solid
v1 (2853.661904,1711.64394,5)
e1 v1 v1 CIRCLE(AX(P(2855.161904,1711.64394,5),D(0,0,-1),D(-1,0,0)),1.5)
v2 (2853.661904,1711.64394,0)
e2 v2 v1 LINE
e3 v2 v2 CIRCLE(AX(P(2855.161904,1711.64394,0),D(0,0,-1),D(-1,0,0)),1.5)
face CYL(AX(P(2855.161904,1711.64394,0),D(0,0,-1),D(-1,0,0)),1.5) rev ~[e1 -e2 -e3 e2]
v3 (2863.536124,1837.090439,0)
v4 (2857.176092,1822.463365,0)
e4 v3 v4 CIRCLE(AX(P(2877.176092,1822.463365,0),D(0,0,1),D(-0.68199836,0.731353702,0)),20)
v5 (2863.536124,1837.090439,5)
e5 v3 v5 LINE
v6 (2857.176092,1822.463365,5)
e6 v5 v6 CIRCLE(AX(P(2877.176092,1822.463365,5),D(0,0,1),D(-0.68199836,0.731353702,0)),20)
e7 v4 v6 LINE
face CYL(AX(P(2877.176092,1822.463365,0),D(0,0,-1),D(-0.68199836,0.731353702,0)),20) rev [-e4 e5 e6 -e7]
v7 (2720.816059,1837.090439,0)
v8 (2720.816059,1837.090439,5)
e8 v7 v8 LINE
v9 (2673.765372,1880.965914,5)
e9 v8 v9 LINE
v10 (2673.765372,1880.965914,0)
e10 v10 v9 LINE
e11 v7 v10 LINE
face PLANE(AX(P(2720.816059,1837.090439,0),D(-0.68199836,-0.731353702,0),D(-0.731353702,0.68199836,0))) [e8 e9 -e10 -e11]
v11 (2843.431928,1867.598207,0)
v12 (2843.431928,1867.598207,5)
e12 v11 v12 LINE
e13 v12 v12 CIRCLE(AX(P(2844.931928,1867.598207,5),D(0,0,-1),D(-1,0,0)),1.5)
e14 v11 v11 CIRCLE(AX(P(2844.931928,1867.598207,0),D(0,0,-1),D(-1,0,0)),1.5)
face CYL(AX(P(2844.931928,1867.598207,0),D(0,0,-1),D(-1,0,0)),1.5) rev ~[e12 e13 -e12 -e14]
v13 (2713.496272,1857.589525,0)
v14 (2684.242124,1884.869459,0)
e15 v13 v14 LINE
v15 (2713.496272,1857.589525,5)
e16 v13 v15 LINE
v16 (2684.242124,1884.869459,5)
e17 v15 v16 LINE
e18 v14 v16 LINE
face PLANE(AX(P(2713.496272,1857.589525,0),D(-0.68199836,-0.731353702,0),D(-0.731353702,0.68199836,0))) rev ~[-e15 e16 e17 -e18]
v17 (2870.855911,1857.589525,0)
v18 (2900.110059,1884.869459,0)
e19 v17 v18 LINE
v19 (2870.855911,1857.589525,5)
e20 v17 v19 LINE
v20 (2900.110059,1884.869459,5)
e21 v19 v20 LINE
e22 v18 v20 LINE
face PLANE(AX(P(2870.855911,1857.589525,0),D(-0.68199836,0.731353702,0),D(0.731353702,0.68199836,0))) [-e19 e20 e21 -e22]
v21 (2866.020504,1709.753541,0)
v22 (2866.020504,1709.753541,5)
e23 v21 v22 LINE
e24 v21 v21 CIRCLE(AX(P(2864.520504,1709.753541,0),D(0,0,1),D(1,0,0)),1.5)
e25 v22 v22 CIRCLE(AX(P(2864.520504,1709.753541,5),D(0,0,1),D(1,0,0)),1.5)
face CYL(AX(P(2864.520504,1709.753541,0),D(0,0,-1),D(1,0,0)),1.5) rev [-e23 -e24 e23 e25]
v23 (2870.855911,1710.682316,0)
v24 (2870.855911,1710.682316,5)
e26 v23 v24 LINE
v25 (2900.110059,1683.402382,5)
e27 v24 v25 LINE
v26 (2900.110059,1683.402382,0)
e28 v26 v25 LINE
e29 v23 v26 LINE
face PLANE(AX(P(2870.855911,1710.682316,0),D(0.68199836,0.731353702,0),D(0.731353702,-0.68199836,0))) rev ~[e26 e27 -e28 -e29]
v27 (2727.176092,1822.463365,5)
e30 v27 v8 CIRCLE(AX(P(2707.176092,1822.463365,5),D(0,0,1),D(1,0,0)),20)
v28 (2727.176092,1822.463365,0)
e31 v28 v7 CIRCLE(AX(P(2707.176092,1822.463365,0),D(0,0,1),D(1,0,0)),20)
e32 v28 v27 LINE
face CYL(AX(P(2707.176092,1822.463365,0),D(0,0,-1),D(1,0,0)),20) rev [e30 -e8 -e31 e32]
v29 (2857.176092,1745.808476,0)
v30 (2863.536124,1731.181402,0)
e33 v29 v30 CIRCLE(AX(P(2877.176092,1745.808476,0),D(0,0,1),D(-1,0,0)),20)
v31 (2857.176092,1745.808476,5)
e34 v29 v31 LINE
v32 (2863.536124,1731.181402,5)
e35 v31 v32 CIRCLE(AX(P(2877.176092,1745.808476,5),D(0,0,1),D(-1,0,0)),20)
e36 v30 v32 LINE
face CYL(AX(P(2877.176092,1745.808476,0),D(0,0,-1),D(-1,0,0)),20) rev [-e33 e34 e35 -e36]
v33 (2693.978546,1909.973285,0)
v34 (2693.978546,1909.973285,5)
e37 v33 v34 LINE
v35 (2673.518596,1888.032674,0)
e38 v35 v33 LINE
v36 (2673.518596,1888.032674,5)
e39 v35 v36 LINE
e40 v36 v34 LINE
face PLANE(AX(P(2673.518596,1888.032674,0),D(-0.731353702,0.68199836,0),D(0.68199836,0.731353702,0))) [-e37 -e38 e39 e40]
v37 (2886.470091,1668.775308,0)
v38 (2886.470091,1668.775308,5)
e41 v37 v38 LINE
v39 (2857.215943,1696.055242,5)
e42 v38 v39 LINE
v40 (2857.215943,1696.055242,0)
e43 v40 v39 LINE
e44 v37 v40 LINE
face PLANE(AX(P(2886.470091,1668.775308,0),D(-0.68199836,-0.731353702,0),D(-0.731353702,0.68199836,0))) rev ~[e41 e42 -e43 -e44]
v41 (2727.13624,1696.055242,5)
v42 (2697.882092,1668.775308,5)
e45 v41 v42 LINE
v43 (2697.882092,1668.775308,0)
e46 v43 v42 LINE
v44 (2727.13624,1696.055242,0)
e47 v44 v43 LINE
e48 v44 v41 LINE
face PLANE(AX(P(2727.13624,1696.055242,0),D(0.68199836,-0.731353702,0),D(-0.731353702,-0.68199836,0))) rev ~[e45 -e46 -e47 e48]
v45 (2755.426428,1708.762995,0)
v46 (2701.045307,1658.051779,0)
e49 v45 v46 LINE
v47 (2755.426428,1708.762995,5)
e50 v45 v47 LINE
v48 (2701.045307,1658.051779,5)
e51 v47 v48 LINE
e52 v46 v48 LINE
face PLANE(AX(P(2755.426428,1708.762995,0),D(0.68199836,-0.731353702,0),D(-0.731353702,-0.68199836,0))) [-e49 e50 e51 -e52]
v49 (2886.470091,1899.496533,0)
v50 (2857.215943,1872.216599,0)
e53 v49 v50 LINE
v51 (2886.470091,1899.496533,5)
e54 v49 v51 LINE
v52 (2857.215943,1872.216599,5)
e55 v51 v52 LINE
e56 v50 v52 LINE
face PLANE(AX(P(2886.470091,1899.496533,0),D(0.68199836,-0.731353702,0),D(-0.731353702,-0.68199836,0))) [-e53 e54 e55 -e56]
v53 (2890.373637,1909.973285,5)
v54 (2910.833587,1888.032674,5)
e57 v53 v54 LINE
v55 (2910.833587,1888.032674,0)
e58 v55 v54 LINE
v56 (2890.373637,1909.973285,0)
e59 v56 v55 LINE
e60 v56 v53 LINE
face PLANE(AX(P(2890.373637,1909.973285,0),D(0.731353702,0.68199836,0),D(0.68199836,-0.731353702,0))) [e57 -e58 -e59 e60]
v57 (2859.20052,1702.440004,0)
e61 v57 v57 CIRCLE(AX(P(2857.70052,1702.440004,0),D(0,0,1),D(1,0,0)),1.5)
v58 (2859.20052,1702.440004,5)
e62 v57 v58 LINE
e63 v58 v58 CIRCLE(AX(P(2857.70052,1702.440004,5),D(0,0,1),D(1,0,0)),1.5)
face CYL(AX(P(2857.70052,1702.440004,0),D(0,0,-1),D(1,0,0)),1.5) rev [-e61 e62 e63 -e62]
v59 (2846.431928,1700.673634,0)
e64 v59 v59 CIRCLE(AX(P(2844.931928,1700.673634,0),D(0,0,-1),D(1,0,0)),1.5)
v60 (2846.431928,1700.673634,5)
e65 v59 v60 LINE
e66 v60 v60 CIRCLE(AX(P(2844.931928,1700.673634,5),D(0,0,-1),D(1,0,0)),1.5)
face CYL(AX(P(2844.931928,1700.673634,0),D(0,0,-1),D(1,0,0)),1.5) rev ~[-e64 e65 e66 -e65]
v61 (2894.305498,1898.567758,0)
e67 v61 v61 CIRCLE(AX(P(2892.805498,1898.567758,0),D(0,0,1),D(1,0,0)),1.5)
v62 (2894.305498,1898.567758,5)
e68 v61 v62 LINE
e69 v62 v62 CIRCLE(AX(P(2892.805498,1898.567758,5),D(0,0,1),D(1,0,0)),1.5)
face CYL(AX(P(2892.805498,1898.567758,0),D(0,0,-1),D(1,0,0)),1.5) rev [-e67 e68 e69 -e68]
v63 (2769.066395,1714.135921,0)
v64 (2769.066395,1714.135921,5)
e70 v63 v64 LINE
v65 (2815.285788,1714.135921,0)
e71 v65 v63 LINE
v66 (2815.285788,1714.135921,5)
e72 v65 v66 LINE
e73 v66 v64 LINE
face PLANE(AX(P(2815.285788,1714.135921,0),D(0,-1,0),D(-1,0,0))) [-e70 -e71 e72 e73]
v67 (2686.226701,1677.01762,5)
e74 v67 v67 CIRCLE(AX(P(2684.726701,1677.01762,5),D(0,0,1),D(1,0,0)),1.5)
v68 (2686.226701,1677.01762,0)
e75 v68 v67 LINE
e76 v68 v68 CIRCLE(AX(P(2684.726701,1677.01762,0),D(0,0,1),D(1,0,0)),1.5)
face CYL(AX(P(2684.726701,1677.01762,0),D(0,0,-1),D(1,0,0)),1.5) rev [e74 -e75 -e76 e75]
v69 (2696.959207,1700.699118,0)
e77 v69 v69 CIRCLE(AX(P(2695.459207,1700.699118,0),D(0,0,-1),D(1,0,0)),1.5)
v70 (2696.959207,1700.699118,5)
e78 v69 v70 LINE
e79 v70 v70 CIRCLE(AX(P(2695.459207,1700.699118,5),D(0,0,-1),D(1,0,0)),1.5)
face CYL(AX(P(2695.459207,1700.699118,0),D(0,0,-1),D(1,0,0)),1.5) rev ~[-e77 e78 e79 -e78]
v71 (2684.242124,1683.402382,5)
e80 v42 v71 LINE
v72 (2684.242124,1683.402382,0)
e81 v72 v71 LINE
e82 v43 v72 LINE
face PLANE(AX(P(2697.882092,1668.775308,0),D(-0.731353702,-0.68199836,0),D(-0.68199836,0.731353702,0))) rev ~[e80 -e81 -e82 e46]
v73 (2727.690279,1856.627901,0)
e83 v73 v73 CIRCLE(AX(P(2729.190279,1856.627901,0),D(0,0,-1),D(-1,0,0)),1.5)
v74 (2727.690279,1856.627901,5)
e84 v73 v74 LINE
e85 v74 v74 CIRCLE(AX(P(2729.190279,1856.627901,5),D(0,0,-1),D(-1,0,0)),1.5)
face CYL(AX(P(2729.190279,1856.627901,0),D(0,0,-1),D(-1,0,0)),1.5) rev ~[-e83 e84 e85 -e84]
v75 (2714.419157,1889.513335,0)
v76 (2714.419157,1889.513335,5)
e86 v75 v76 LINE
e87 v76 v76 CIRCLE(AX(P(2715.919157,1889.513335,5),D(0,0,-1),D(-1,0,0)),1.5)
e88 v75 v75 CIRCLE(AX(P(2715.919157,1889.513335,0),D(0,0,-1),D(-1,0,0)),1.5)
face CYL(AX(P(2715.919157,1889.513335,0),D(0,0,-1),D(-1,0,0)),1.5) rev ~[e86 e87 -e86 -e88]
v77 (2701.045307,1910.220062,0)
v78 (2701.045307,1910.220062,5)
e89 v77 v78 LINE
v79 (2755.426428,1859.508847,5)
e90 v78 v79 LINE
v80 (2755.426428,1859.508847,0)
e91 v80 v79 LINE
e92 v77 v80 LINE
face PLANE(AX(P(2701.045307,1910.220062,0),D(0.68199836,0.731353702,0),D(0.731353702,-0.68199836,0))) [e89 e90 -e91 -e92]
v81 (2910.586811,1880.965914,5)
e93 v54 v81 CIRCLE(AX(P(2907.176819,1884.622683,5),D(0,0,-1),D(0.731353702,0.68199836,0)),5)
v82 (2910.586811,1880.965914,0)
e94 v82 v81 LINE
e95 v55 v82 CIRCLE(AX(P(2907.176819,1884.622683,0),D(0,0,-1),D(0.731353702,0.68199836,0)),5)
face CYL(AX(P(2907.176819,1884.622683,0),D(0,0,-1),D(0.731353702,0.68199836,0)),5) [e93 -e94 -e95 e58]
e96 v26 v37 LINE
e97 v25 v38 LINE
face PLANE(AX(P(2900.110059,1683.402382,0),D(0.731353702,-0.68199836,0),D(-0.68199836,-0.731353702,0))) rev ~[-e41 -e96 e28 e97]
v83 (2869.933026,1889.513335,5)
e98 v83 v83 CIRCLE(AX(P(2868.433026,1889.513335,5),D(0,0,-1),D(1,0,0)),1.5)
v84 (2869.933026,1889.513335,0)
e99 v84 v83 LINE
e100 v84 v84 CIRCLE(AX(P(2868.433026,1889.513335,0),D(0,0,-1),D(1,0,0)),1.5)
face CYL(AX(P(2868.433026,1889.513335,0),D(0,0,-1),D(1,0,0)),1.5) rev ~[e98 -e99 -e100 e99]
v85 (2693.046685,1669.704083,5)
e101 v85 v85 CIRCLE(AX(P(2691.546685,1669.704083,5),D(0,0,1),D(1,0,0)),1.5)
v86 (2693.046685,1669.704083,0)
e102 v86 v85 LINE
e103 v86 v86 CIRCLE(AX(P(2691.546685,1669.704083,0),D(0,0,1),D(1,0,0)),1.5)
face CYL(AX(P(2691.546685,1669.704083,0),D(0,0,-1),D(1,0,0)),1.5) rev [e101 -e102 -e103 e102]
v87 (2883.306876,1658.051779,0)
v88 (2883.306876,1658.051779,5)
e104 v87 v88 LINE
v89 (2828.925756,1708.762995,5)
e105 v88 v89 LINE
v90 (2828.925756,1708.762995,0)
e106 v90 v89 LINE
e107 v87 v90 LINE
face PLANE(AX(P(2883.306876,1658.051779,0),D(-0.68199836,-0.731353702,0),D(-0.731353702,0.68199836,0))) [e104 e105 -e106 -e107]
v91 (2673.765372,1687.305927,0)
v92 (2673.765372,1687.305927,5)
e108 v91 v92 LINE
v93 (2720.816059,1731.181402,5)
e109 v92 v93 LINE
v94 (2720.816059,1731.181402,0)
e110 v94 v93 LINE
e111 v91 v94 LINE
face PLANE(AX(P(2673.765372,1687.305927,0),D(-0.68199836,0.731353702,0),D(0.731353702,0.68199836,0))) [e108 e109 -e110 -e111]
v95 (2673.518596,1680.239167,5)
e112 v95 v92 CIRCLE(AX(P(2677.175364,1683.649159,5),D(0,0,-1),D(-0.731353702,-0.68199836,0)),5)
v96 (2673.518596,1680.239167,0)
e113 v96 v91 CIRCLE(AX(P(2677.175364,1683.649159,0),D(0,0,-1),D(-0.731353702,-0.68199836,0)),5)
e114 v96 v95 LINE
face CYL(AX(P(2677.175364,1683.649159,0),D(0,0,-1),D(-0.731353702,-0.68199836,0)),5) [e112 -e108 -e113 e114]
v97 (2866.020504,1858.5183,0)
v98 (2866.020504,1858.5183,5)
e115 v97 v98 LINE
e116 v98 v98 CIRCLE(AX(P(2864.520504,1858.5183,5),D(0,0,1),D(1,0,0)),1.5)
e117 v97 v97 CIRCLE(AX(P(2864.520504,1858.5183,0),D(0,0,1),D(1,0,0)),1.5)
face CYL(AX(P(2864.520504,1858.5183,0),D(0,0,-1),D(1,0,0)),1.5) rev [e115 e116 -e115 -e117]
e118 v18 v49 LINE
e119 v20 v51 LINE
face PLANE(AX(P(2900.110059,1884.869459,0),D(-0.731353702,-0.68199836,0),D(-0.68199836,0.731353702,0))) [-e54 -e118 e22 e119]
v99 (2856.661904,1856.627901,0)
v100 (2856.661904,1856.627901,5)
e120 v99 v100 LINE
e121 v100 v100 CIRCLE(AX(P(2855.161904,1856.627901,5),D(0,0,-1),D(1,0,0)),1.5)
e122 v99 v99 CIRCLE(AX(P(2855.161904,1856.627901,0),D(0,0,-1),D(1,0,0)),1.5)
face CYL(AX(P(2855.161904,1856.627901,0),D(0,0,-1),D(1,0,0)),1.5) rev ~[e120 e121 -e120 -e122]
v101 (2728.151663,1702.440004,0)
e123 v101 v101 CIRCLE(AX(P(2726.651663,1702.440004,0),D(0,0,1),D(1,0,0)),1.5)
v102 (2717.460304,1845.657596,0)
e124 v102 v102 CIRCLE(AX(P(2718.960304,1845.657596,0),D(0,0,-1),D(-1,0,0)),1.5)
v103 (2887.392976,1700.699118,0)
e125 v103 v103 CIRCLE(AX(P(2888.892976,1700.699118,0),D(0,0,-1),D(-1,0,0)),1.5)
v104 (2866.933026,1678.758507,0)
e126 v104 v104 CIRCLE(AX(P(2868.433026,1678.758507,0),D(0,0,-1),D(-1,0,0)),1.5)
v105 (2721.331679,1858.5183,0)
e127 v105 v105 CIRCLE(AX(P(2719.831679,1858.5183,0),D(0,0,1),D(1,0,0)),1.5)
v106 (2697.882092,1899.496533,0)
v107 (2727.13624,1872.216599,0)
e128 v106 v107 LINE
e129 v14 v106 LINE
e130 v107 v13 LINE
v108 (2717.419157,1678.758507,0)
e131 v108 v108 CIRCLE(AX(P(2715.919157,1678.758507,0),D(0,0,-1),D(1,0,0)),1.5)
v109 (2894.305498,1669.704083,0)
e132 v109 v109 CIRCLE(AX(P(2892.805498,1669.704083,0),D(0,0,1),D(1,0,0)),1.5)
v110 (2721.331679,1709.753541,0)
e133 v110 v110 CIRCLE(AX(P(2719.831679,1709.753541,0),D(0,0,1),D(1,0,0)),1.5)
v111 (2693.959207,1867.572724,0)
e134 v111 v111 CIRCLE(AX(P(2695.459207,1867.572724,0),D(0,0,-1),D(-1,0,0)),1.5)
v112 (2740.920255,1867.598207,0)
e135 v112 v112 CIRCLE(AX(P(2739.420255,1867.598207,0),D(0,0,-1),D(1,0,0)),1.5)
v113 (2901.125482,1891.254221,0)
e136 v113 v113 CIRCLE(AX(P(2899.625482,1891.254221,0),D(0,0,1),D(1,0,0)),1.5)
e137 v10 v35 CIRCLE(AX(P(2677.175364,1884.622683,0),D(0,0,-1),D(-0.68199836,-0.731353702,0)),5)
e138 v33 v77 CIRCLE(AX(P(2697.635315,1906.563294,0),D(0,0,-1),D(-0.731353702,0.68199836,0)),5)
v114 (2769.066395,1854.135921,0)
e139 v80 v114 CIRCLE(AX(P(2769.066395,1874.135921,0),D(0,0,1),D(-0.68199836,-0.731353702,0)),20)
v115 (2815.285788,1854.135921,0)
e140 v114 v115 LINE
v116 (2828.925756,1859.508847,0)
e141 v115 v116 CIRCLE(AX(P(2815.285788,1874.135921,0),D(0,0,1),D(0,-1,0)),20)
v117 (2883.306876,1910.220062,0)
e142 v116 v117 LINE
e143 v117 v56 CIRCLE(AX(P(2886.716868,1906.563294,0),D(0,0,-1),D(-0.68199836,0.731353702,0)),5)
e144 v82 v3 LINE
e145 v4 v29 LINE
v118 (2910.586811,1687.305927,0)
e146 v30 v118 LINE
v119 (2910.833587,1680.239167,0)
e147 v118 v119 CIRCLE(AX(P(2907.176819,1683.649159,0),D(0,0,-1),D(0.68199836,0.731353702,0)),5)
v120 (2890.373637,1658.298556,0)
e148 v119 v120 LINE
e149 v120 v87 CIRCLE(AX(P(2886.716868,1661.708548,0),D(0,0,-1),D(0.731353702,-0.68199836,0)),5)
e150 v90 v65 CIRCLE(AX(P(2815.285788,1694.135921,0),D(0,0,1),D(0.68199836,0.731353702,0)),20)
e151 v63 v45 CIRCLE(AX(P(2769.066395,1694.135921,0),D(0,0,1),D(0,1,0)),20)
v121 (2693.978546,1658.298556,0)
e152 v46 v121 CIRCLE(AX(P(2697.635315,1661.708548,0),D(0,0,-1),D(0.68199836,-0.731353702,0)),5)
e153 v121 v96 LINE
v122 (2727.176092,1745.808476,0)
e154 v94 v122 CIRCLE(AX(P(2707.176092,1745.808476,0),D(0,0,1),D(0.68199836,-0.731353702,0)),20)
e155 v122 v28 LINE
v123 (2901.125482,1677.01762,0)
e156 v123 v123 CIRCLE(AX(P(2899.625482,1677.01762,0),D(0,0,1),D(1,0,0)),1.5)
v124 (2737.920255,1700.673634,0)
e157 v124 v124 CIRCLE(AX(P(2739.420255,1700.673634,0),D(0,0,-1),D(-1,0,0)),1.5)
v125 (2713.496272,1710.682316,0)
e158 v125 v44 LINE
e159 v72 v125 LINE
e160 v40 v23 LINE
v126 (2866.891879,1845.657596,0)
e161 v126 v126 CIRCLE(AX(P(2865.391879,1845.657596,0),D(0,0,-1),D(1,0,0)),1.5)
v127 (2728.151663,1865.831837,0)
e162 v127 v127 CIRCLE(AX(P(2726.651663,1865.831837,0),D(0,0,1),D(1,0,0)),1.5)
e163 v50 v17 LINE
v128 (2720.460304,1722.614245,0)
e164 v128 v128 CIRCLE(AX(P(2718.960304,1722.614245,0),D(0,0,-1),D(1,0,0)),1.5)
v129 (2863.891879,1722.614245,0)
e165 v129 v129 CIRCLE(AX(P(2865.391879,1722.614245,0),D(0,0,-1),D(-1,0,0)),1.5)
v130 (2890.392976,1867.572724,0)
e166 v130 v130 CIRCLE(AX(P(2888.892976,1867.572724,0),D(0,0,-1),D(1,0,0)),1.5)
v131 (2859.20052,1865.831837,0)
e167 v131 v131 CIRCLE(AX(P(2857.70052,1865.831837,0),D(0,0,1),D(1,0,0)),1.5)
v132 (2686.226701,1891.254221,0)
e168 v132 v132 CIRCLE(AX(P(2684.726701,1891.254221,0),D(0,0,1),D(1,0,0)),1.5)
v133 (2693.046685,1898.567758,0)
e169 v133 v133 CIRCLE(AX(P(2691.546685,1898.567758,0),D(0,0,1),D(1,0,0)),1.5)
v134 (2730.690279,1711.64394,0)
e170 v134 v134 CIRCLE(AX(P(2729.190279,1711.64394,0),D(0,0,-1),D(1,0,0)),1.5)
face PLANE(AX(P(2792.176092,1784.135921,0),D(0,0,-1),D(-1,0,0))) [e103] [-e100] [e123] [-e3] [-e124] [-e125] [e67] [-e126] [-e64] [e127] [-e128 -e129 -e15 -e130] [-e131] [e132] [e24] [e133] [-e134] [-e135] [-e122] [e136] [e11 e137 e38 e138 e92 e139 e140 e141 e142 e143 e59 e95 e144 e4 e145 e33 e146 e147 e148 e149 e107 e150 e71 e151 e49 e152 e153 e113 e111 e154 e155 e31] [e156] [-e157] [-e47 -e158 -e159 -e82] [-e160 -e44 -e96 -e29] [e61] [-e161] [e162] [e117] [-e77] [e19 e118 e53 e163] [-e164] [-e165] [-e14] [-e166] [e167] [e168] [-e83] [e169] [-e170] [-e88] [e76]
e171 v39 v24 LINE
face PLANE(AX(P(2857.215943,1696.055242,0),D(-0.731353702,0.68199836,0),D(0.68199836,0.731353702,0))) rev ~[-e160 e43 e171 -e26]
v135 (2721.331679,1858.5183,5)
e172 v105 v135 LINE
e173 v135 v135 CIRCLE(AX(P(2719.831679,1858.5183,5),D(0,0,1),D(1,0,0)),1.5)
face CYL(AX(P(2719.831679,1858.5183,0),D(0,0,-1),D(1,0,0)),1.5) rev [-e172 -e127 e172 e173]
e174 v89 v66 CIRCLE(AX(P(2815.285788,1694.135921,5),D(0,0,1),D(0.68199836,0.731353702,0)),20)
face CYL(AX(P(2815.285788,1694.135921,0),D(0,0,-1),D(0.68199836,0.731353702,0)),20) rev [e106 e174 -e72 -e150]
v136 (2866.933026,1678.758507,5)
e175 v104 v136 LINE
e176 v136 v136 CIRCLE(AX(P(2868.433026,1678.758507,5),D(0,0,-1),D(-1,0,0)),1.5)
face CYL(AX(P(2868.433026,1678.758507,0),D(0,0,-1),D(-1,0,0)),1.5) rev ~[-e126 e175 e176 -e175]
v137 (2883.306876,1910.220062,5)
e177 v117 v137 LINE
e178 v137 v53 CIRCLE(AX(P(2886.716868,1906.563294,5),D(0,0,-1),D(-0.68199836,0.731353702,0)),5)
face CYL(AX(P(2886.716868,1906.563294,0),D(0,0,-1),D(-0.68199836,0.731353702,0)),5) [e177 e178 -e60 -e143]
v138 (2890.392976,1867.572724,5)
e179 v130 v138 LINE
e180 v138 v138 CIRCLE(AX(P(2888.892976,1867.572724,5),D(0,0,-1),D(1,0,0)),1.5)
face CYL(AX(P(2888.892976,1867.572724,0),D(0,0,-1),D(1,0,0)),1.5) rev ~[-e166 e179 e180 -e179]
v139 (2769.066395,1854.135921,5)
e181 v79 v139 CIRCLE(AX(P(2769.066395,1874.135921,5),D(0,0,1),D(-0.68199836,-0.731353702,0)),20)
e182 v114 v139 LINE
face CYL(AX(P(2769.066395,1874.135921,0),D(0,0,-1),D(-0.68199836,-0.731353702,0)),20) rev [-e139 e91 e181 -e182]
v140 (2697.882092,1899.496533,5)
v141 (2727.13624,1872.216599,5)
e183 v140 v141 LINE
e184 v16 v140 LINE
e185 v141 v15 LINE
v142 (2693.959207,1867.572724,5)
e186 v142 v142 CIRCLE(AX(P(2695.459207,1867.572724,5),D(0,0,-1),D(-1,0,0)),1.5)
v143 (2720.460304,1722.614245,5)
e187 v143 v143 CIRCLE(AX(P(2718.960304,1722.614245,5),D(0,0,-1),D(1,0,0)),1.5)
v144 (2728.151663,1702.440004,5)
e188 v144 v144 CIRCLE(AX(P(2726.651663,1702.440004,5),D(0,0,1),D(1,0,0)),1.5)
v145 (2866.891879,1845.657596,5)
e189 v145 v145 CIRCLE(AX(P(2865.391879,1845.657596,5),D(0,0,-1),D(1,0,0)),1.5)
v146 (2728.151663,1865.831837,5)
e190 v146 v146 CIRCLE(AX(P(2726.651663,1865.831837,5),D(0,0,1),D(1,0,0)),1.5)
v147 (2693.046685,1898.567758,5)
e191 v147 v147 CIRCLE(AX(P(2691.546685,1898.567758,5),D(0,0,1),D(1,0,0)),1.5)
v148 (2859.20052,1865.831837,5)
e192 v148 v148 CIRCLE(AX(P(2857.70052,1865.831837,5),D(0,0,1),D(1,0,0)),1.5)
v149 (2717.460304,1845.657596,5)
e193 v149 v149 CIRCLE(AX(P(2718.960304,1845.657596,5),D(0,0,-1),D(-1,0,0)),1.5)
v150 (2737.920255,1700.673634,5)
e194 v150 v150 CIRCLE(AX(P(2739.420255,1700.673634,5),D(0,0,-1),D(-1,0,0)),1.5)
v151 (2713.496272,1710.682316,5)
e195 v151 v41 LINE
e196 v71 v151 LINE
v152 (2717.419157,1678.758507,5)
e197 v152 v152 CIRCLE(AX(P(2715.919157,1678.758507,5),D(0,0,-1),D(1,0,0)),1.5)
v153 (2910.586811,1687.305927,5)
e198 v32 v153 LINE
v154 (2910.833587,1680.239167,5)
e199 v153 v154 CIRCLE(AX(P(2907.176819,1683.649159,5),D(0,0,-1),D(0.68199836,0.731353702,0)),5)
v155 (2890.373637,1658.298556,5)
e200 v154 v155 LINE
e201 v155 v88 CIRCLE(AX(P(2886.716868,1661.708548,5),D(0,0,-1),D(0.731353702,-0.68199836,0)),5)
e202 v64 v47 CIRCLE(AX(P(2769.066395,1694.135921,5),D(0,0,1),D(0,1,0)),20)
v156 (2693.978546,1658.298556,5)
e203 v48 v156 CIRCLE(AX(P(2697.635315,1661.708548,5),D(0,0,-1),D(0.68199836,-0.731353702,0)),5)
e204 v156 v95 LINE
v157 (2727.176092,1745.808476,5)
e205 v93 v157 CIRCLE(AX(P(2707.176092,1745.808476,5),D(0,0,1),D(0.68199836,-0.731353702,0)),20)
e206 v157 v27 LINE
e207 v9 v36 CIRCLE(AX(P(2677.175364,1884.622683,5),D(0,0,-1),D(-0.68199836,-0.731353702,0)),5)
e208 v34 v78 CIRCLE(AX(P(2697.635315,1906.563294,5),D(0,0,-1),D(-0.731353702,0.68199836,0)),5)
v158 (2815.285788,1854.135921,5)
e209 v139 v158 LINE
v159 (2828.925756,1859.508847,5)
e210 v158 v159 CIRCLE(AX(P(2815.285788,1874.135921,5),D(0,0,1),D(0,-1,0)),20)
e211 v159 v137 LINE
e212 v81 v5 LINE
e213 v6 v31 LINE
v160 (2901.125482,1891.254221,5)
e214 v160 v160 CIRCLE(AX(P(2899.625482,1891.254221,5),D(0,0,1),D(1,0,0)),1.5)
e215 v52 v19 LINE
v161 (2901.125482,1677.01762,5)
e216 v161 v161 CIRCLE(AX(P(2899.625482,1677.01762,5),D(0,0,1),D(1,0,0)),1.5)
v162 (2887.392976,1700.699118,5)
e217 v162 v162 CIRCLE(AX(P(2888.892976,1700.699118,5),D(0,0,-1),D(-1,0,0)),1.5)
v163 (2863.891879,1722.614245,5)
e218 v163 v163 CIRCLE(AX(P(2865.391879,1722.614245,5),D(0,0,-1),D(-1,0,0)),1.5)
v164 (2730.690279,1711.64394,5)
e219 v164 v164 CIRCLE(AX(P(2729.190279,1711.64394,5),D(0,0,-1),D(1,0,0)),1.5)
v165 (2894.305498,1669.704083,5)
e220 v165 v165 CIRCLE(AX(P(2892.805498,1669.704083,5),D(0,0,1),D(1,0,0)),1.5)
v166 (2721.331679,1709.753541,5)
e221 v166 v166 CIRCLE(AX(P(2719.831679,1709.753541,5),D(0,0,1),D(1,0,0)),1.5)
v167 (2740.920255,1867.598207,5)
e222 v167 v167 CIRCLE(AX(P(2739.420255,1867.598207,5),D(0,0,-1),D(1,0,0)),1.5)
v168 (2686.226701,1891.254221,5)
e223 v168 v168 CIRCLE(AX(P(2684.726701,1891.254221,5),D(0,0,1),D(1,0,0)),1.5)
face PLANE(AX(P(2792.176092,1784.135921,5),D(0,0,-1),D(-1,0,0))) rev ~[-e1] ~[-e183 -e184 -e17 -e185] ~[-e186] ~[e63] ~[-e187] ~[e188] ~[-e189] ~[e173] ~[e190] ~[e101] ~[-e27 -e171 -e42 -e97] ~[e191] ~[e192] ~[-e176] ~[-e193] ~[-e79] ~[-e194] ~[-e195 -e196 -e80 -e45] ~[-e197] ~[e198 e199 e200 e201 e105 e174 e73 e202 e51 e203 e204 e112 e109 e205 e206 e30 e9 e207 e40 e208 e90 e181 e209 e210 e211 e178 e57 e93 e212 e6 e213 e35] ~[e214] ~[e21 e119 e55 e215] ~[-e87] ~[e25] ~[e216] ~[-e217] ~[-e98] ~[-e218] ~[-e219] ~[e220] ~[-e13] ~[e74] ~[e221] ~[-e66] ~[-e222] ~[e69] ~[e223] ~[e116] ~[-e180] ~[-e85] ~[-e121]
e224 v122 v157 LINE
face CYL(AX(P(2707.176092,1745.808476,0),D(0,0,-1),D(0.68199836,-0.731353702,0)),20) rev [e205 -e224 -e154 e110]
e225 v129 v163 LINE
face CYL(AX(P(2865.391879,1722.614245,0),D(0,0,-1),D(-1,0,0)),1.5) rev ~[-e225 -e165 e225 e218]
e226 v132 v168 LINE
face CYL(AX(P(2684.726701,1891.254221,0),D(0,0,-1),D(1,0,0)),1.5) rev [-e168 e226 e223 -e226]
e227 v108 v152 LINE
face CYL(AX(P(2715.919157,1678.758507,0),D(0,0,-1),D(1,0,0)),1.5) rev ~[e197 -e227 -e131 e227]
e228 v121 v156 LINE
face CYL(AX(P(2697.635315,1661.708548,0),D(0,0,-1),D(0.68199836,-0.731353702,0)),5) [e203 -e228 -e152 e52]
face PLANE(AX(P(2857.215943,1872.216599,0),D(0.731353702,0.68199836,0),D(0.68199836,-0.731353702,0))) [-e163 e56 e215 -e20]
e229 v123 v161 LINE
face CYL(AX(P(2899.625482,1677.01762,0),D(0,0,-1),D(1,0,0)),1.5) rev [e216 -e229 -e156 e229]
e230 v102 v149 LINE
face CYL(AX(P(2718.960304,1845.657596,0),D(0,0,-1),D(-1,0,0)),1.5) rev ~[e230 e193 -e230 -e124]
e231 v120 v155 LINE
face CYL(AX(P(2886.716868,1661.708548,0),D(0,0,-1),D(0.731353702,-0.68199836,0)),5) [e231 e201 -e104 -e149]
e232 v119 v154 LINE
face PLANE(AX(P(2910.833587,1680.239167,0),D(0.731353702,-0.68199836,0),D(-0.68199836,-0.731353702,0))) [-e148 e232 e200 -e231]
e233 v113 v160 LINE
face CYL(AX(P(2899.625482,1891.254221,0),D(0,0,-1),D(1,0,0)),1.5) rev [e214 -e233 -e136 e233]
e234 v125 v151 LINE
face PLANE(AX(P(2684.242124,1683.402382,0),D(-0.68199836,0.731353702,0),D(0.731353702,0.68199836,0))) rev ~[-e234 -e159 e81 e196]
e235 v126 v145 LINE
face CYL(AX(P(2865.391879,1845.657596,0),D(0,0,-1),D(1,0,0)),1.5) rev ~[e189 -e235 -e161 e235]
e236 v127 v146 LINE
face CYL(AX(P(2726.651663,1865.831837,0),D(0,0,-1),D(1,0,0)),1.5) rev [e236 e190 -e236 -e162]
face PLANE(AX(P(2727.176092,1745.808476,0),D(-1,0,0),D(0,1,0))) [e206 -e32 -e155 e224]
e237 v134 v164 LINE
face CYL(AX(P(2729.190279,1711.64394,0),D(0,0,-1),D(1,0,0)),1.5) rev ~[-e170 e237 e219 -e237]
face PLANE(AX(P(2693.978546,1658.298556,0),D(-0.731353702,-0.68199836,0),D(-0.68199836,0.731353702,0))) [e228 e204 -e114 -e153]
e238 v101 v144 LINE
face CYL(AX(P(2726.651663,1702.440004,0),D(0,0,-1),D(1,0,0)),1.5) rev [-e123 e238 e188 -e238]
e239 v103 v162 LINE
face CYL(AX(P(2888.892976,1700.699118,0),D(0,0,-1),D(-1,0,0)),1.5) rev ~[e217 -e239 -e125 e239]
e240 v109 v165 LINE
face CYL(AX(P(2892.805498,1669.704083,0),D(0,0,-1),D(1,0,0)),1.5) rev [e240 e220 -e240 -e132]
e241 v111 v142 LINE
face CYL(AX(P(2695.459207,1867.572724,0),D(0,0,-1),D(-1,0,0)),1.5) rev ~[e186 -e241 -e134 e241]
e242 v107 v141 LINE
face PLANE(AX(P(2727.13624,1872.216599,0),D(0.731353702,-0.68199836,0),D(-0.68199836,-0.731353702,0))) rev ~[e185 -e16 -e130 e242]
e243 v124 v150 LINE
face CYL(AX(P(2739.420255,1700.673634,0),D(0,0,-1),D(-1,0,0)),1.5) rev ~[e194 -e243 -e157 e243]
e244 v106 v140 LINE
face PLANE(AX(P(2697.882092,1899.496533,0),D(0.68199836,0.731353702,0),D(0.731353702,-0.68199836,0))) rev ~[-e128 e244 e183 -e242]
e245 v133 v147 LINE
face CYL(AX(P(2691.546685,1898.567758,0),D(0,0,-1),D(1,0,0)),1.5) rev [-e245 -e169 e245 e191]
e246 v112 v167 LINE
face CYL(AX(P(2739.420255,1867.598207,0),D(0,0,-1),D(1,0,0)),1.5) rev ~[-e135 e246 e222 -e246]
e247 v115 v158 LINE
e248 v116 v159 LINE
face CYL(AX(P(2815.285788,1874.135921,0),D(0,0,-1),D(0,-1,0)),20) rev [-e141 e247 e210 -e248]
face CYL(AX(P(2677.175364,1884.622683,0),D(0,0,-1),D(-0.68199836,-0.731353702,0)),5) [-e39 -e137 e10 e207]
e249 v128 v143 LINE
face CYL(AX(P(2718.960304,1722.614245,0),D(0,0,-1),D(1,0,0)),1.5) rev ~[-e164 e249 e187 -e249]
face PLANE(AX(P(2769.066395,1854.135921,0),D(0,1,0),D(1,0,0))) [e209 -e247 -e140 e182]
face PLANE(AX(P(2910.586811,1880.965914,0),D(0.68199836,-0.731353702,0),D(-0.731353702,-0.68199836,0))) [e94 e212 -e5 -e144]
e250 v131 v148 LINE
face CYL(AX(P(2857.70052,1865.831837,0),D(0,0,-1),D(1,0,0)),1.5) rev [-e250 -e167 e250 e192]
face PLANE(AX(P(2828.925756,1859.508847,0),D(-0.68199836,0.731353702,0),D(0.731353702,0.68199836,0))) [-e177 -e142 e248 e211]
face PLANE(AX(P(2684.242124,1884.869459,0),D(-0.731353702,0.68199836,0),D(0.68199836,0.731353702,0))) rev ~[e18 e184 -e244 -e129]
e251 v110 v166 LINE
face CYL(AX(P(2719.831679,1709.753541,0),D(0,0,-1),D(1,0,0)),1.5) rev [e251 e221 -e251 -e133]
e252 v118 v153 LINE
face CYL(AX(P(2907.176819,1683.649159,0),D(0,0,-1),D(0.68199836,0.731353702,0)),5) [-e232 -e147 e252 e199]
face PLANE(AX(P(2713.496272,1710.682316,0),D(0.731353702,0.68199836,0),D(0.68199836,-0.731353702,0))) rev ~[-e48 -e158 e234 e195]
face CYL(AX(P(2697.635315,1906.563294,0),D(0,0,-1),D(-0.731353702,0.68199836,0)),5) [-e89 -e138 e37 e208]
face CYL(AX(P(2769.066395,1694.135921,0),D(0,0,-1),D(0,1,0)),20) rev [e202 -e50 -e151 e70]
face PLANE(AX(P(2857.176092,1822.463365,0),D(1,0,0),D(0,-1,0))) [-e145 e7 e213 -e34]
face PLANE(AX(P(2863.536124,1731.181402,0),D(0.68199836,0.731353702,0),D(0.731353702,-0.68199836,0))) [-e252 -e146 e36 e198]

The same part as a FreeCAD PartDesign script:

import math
import FreeCAD as App
import Part
import Sketcher
from FreeCAD import Vector
Q = App.Units.Quantity


def add_polygon(sketch, points):
    """Adds a closed chain of lines whose ends are joined by coincident constraints."""
    first, n = sketch.GeometryCount, len(points)
    for a, b in zip(points, points[1:] + points[:1]):
        sketch.addGeometry(Part.LineSegment(App.Vector(*a, 0), App.Vector(*b, 0)), False)
    for i in range(n):
        sketch.addConstraint(Sketcher.Constraint("Coincident", first + i, 2, first + (i + 1) % n, 1))

doc = App.newDocument("Part")
body = doc.addObject("PartDesign::Body", "Body")

sketch1 = body.newObject("Sketcher::SketchObject", "Sketch")
sketch1.AttachmentSupport = (doc.getObject("XY_Plane"), [""])
sketch1.MapMode = "FlatFace"
sketch1.addGeometry([
    Part.LineSegment(Vector(2815.3, 1854.1, 0), Vector(2769.1, 1854.1, 0)),
    Part.ArcOfCircle(Part.Circle(Vector(2769.1, 1874.1, 0), Vector(0, 0, 1), 20), math.radians(-133), math.radians(-90)),
    Part.LineSegment(Vector(2755.4, 1859.5, 0), Vector(2701, 1910.2, 0)),
    Part.ArcOfCircle(Part.Circle(Vector(2697.6, 1906.6, 0), Vector(0, 0, 1), 5), math.radians(47), math.radians(137)),
    Part.LineSegment(Vector(2694, 1910, 0), Vector(2673.5, 1888, 0)),
    Part.ArcOfCircle(Part.Circle(Vector(2677.2, 1884.6, 0), Vector(0, 0, 1), 5), math.radians(137), math.radians(227)),
    Part.LineSegment(Vector(2673.8, 1881, 0), Vector(2720.8, 1837.1, 0)),
    Part.ArcOfCircle(Part.Circle(Vector(2707.2, 1822.5, 0), Vector(0, 0, 1), 20), math.radians(0), math.radians(47)),
    Part.LineSegment(Vector(2727.2, 1822.5, 0), Vector(2727.2, 1745.8, 0)),
    Part.ArcOfCircle(Part.Circle(Vector(2707.2, 1745.8, 0), Vector(0, 0, 1), 20), math.radians(-47), math.radians(0)),
    Part.LineSegment(Vector(2720.8, 1731.2, 0), Vector(2673.8, 1687.3, 0)),
    Part.ArcOfCircle(Part.Circle(Vector(2677.2, 1683.6, 0), Vector(0, 0, 1), 5), math.radians(133), math.radians(223)),
    Part.LineSegment(Vector(2673.5, 1680.2, 0), Vector(2694, 1658.3, 0)),
    Part.ArcOfCircle(Part.Circle(Vector(2697.6, 1661.7, 0), Vector(0, 0, 1), 5), math.radians(-137), math.radians(-47)),
    Part.LineSegment(Vector(2701, 1658.1, 0), Vector(2755.4, 1708.8, 0)),
    Part.ArcOfCircle(Part.Circle(Vector(2769.1, 1694.1, 0), Vector(0, 0, 1), 20), math.radians(90), math.radians(133)),
    Part.LineSegment(Vector(2769.1, 1714.1, 0), Vector(2815.3, 1714.1, 0)),
    Part.ArcOfCircle(Part.Circle(Vector(2815.3, 1694.1, 0), Vector(0, 0, 1), 20), math.radians(47), math.radians(90)),
    Part.LineSegment(Vector(2828.9, 1708.8, 0), Vector(2883.3, 1658.1, 0)),
    Part.ArcOfCircle(Part.Circle(Vector(2886.7, 1661.7, 0), Vector(0, 0, 1), 5), math.radians(-133), math.radians(-43)),
    Part.LineSegment(Vector(2890.4, 1658.3, 0), Vector(2910.8, 1680.2, 0)),
    Part.ArcOfCircle(Part.Circle(Vector(2907.2, 1683.6, 0), Vector(0, 0, 1), 5), math.radians(-43), math.radians(47)),
    Part.LineSegment(Vector(2910.6, 1687.3, 0), Vector(2863.5, 1731.2, 0)),
    Part.ArcOfCircle(Part.Circle(Vector(2877.2, 1745.8, 0), Vector(0, 0, 1), 20), math.radians(-180), math.radians(-133)),
    Part.LineSegment(Vector(2857.2, 1745.8, 0), Vector(2857.2, 1822.5, 0)),
    Part.ArcOfCircle(Part.Circle(Vector(2877.2, 1822.5, 0), Vector(0, 0, 1), 20), math.radians(133), math.radians(180)),
    Part.LineSegment(Vector(2863.5, 1837.1, 0), Vector(2910.6, 1881, 0)),
    Part.ArcOfCircle(Part.Circle(Vector(2907.2, 1884.6, 0), Vector(0, 0, 1), 5), math.radians(-47), math.radians(43)),
    Part.LineSegment(Vector(2910.8, 1888, 0), Vector(2890.4, 1910, 0)),
    Part.ArcOfCircle(Part.Circle(Vector(2886.7, 1906.6, 0), Vector(0, 0, 1), 5), math.radians(43), math.radians(133)),
    Part.LineSegment(Vector(2883.3, 1910.2, 0), Vector(2828.9, 1859.5, 0)),
    Part.ArcOfCircle(Part.Circle(Vector(2815.3, 1874.1, 0), Vector(0, 0, 1), 20), math.radians(-90), math.radians(-47)),
], False)
sketch1.addConstraint([
    Sketcher.Constraint("Tangent", 0, 2, 1, 2),
    Sketcher.Constraint("Tangent", 1, 1, 2, 1),
    Sketcher.Constraint("Tangent", 2, 2, 3, 1),
    Sketcher.Constraint("Tangent", 3, 2, 4, 1),
    Sketcher.Constraint("Tangent", 4, 2, 5, 1),
    Sketcher.Constraint("Tangent", 5, 2, 6, 1),
    Sketcher.Constraint("Tangent", 6, 2, 7, 2),
    Sketcher.Constraint("Tangent", 7, 1, 8, 1),
    Sketcher.Constraint("Tangent", 8, 2, 9, 2),
    Sketcher.Constraint("Tangent", 9, 1, 10, 1),
    Sketcher.Constraint("Tangent", 10, 2, 11, 1),
    Sketcher.Constraint("Tangent", 11, 2, 12, 1),
    Sketcher.Constraint("Tangent", 12, 2, 13, 1),
    Sketcher.Constraint("Tangent", 13, 2, 14, 1),
    Sketcher.Constraint("Tangent", 14, 2, 15, 2),
    Sketcher.Constraint("Tangent", 15, 1, 16, 1),
    Sketcher.Constraint("Tangent", 16, 2, 17, 2),
    Sketcher.Constraint("Tangent", 17, 1, 18, 1),
    Sketcher.Constraint("Tangent", 18, 2, 19, 1),
    Sketcher.Constraint("Tangent", 19, 2, 20, 1),
    Sketcher.Constraint("Tangent", 20, 2, 21, 1),
    Sketcher.Constraint("Tangent", 21, 2, 22, 1),
    Sketcher.Constraint("Tangent", 22, 2, 23, 2),
    Sketcher.Constraint("Tangent", 23, 1, 24, 1),
    Sketcher.Constraint("Tangent", 24, 2, 25, 2),
    Sketcher.Constraint("Tangent", 25, 1, 26, 1),
    Sketcher.Constraint("Tangent", 26, 2, 27, 1),
    Sketcher.Constraint("Tangent", 27, 2, 28, 1),
    Sketcher.Constraint("Tangent", 28, 2, 29, 1),
    Sketcher.Constraint("Tangent", 29, 2, 30, 1),
    Sketcher.Constraint("Tangent", 30, 2, 31, 2),
    Sketcher.Constraint("Tangent", 31, 1, 0, 1),
    Sketcher.Constraint("Horizontal", 0),
    Sketcher.Constraint("Vertical", 8),
    Sketcher.Constraint("Horizontal", 16),
    Sketcher.Constraint("Vertical", 24),
    Sketcher.Constraint("Equal", 3, 5),
    Sketcher.Constraint("Equal", 1, 7),
    Sketcher.Constraint("Equal", 7, 9),
    Sketcher.Constraint("Equal", 5, 11),
    Sketcher.Constraint("Equal", 11, 13),
    Sketcher.Constraint("Equal", 9, 15),
    Sketcher.Constraint("Equal", 15, 17),
    Sketcher.Constraint("Equal", 13, 19),
    Sketcher.Constraint("Equal", 19, 21),
    Sketcher.Constraint("Equal", 17, 23),
    Sketcher.Constraint("Equal", 23, 25),
    Sketcher.Constraint("Equal", 21, 27),
    Sketcher.Constraint("Equal", 27, 29),
    Sketcher.Constraint("Equal", 25, 31),
    Sketcher.Constraint("Perpendicular", 2, 4),
    Sketcher.Constraint("Perpendicular", 4, 6),
    Sketcher.Constraint("Perpendicular", 10, 12),
    Sketcher.Constraint("Perpendicular", 12, 14),
    Sketcher.Constraint("Parallel", 6, 18),
    Sketcher.Constraint("Perpendicular", 18, 20),
    Sketcher.Constraint("Perpendicular", 20, 22),
    Sketcher.Constraint("Parallel", 14, 26),
    Sketcher.Constraint("Perpendicular", 26, 28),
    Sketcher.Constraint("Perpendicular", 28, 30),
    Sketcher.Constraint("Horizontal", 13, 3, 19, 3),
    Sketcher.Constraint("Horizontal", 11, 3, 21, 3),
    Sketcher.Constraint("Horizontal", 9, 3, 23, 3),
    Sketcher.Constraint("Horizontal", 7, 3, 25, 3),
    Sketcher.Constraint("Horizontal", 5, 3, 27, 3),
    Sketcher.Constraint("Horizontal", 3, 3, 29, 3),
    Sketcher.Constraint("Horizontal", 14, 2, 17, 1),
    Sketcher.Constraint("Vertical", 5, 3, 11, 3),
    Sketcher.Constraint("Vertical", 3, 3, 13, 3),
    Sketcher.Constraint("Vertical", 1, 3, 15, 3),
    Sketcher.Constraint("Radius", 1, 20.0),
    Sketcher.Constraint("Radius", 3, 5.0),
    Sketcher.Constraint("Angle", 2, Q("137 deg")),
    Sketcher.Constraint("Distance", 4, 30.0),
    Sketcher.Constraint("DistanceY", 15, 3, 1, 3, 180.0),
    Sketcher.Constraint("Distance", 2, 74.3568),
    Sketcher.Constraint("DistanceY", 8, 2, 8, 1, 76.654889),
    Sketcher.Constraint("DistanceX", 0, 2, 0, 1, 46.219394),
    Sketcher.Constraint("DistanceY", -1, 1, 1, 3, 1874.135921),
    Sketcher.Constraint("DistanceX", -1, 1, 7, 3, 2707.176092),
])
pad1 = body.newObject("PartDesign::Pad", "Pad")
pad1.Profile = sketch1
pad1.Length = 5

sketch2 = body.newObject("Sketcher::SketchObject", "Sketch001")
sketch2.AttachmentSupport = (doc.getObject("XY_Plane"), [""])
sketch2.MapMode = "FlatFace"
sketch2.addGeometry(Part.Circle(Vector(2899.6, 1891.3, 0), Vector(0, 0, 1), 1.5), False)
sketch2.addGeometry(Part.Circle(Vector(2892.8, 1898.6, 0), Vector(0, 0, 1), 1.5), False)
sketch2.addGeometry(Part.Circle(Vector(2857.7, 1865.8, 0), Vector(0, 0, 1), 1.5), False)
sketch2.addGeometry(Part.Circle(Vector(2864.5, 1858.5, 0), Vector(0, 0, 1), 1.5), False)
sketch2.addGeometry(Part.Circle(Vector(2892.8, 1669.7, 0), Vector(0, 0, 1), 1.5), False)
sketch2.addGeometry(Part.Circle(Vector(2864.5, 1709.8, 0), Vector(0, 0, 1), 1.5), False)
sketch2.addGeometry(Part.Circle(Vector(2857.7, 1702.4, 0), Vector(0, 0, 1), 1.5), False)
add_polygon(sketch2, [(2684.2, 1683.4), (2697.9, 1668.8), (2727.1, 1696.1), (2713.5, 1710.7)])
add_polygon(sketch2, [(2857.2, 1696.1), (2886.5, 1668.8), (2900.1, 1683.4), (2870.9, 1710.7)])
add_polygon(sketch2, [(2727.1, 1872.2), (2697.9, 1899.5), (2684.2, 1884.9), (2713.5, 1857.6)])
sketch2.addGeometry(Part.Circle(Vector(2691.5, 1898.6, 0), Vector(0, 0, 1), 1.5), False)
add_polygon(sketch2, [(2870.9, 1857.6), (2900.1, 1884.9), (2886.5, 1899.5), (2857.2, 1872.2)])
sketch2.addGeometry(Part.Circle(Vector(2899.6, 1677, 0), Vector(0, 0, 1), 1.5), False)
sketch2.addGeometry(Part.Circle(Vector(2726.7, 1702.4, 0), Vector(0, 0, 1), 1.5), False)
sketch2.addGeometry(Part.Circle(Vector(2719.8, 1709.8, 0), Vector(0, 0, 1), 1.5), False)
sketch2.addGeometry(Part.Circle(Vector(2691.5, 1669.7, 0), Vector(0, 0, 1), 1.5), False)
sketch2.addGeometry(Part.Circle(Vector(2684.7, 1677, 0), Vector(0, 0, 1), 1.5), False)
sketch2.addGeometry(Part.Circle(Vector(2726.7, 1865.8, 0), Vector(0, 0, 1), 1.5), False)
sketch2.addGeometry(Part.Circle(Vector(2719.8, 1858.5, 0), Vector(0, 0, 1), 1.5), False)
sketch2.addGeometry(Part.Circle(Vector(2684.7, 1891.3, 0), Vector(0, 0, 1), 1.5), False)
sketch2.addConstraint([
    Sketcher.Constraint("Equal", 0, 1),
    Sketcher.Constraint("Equal", 1, 2),
    Sketcher.Constraint("Equal", 2, 3),
    Sketcher.Constraint("Equal", 3, 4),
    Sketcher.Constraint("Equal", 4, 5),
    Sketcher.Constraint("Equal", 5, 6),
    Sketcher.Constraint("Equal", 6, 19),
    Sketcher.Constraint("Equal", 19, 24),
    Sketcher.Constraint("Equal", 24, 25),
    Sketcher.Constraint("Equal", 25, 26),
    Sketcher.Constraint("Equal", 26, 27),
    Sketcher.Constraint("Equal", 27, 28),
    Sketcher.Constraint("Equal", 28, 29),
    Sketcher.Constraint("Equal", 29, 30),
    Sketcher.Constraint("Equal", 30, 31),
    Sketcher.Constraint("Perpendicular", 7, 8),
    Sketcher.Constraint("Perpendicular", 8, 9),
    Sketcher.Constraint("Perpendicular", 9, 10),
    Sketcher.Constraint("Perpendicular", 11, 12),
    Sketcher.Constraint("Perpendicular", 12, 13),
    Sketcher.Constraint("Perpendicular", 13, 14),
    Sketcher.Constraint("Perpendicular", 14, 15),
    Sketcher.Constraint("Perpendicular", 15, 16),
    Sketcher.Constraint("Perpendicular", 16, 17),
    Sketcher.Constraint("Perpendicular", 17, 18),
    Sketcher.Constraint("Parallel", 10, 20),
    Sketcher.Constraint("Perpendicular", 20, 21),
    Sketcher.Constraint("Perpendicular", 21, 22),
    Sketcher.Constraint("Perpendicular", 22, 23),
    Sketcher.Constraint("Horizontal", 1, 3, 19, 3),
    Sketcher.Constraint("Horizontal", 6, 3, 25, 3),
    Sketcher.Constraint("Horizontal", 5, 3, 26, 3),
    Sketcher.Constraint("Horizontal", 4, 3, 27, 3),
    Sketcher.Constraint("Horizontal", 24, 3, 28, 3),
    Sketcher.Constraint("Horizontal", 2, 3, 29, 3),
    Sketcher.Constraint("Horizontal", 3, 3, 30, 3),
    Sketcher.Constraint("Horizontal", 0, 3, 31, 3),
    Sketcher.Constraint("Horizontal", 7, 2, 11, 2),
    Sketcher.Constraint("Horizontal", 10, 2, 12, 2),
    Sketcher.Constraint("Horizontal", 9, 2, 13, 2),
    Sketcher.Constraint("Horizontal", 16, 2, 20, 2),
    Sketcher.Constraint("Horizontal", 15, 2, 21, 2),
    Sketcher.Constraint("Horizontal", 18, 2, 22, 2),
    Sketcher.Constraint("Vertical", 1, 3, 4, 3),
    Sketcher.Constraint("Vertical", 3, 3, 5, 3),
    Sketcher.Constraint("Vertical", 2, 3, 6, 3),
    Sketcher.Constraint("Vertical", 0, 3, 24, 3),
    Sketcher.Constraint("Vertical", 19, 3, 27, 3),
    Sketcher.Constraint("Vertical", 25, 3, 29, 3),
    Sketcher.Constraint("Vertical", 26, 3, 30, 3),
    Sketcher.Constraint("Vertical", 28, 3, 31, 3),
    Sketcher.Constraint("Vertical", 7, 2, 15, 2),
    Sketcher.Constraint("Vertical", 10, 2, 16, 2),
    Sketcher.Constraint("Vertical", 9, 2, 17, 2),
    Sketcher.Constraint("Vertical", 12, 2, 20, 2),
    Sketcher.Constraint("Vertical", 11, 2, 21, 2),
    Sketcher.Constraint("Diameter", 0, 3.0),
    Sketcher.Constraint("Angle", 7, Q("-47 deg")),
    Sketcher.Constraint("Distance", 7, 20.0),
    Sketcher.Constraint("Distance", 8, 40.0),
    Sketcher.Constraint("DistanceX", -1, 1, 1, 3, 2892.805498),
    Sketcher.Constraint("DistanceY", -1, 1, 3, 3, 1858.5183),
    Sketcher.Constraint("DistanceX", -1, 1, 28, 3, 2684.726701),
    Sketcher.Constraint("DistanceY", -1, 1, 18, 2, 1872.216599),
    Sketcher.Constraint("DistanceY", 8, 2, 26, 3, 13.698299),
    Sketcher.Constraint("DistanceY", 27, 3, 10, 2, 13.698299),
    Sketcher.Constraint("DistanceY", 16, 2, 19, 3, 13.698299),
    Sketcher.Constraint("DistanceX", -1, 1, 0, 3, 2899.625482),
    Sketcher.Constraint("DistanceY", -1, 1, 0, 3, 1891.254221),
    Sketcher.Constraint("DistanceX", -1, 1, 2, 3, 2857.70052),
    Sketcher.Constraint("DistanceY", -1, 1, 5, 3, 1709.753541),
    Sketcher.Constraint("DistanceY", -1, 1, 24, 3, 1677.01762),
    Sketcher.Constraint("DistanceX", -1, 1, 26, 3, 2719.831679),
    Sketcher.Constraint("DistanceX", -1, 1, 7, 2, 2697.882092),
    Sketcher.Constraint("DistanceX", -1, 1, 11, 2, 2886.470091),
    Sketcher.Constraint("DistanceY", 2, 3, 1, 3, 32.735921),
    Sketcher.Constraint("DistanceY", 4, 3, 6, 3, 32.735921),
    Sketcher.Constraint("DistanceX", 19, 3, 3, 3, 172.973819),
    Sketcher.Constraint("DistanceX", 25, 3, 5, 3, 137.868841),
    Sketcher.Constraint("DistanceX", 25, 3, 24, 3, 172.973819),
])
pocket1 = body.newObject("PartDesign::Pocket", "Pocket")
pocket1.Profile = sketch2
pocket1.Length = 5
pocket1.Reversed = True

sketch3 = body.newObject("Sketcher::SketchObject", "Sketch002")
sketch3.AttachmentSupport = (doc.getObject("XY_Plane"), [""])
sketch3.MapMode = "FlatFace"
sketch3.addGeometry([
    Part.Circle(Vector(2888.9, 1700.7, 0), Vector(0, 0, 1), 1.5),
    Part.Circle(Vector(2868.4, 1678.8, 0), Vector(0, 0, 1), 1.5),
    Part.Circle(Vector(2715.9, 1678.8, 0), Vector(0, 0, 1), 1.5),
    Part.Circle(Vector(2695.5, 1700.7, 0), Vector(0, 0, 1), 1.5),
    Part.Circle(Vector(2695.5, 1867.6, 0), Vector(0, 0, 1), 1.5),
    Part.Circle(Vector(2715.9, 1889.5, 0), Vector(0, 0, 1), 1.5),
    Part.Circle(Vector(2868.4, 1889.5, 0), Vector(0, 0, 1), 1.5),
    Part.Circle(Vector(2888.9, 1867.6, 0), Vector(0, 0, 1), 1.5),
], False)
sketch3.addConstraint([
    Sketcher.Constraint("Equal", 0, 1),
    Sketcher.Constraint("Equal", 1, 2),
    Sketcher.Constraint("Equal", 2, 3),
    Sketcher.Constraint("Equal", 3, 4),
    Sketcher.Constraint("Equal", 4, 5),
    Sketcher.Constraint("Equal", 5, 6),
    Sketcher.Constraint("Equal", 6, 7),
    Sketcher.Constraint("Horizontal", 1, 3, 2, 3),
    Sketcher.Constraint("Horizontal", 0, 3, 3, 3),
    Sketcher.Constraint("Horizontal", 5, 3, 6, 3),
    Sketcher.Constraint("Horizontal", 4, 3, 7, 3),
    Sketcher.Constraint("Vertical", 3, 3, 4, 3),
    Sketcher.Constraint("Vertical", 2, 3, 5, 3),
    Sketcher.Constraint("Vertical", 1, 3, 6, 3),
    Sketcher.Constraint("Vertical", 0, 3, 7, 3),
    Sketcher.Constraint("Diameter", 0, 3.0),
    Sketcher.Constraint("DistanceX", 1, 3, 0, 3, 20.459951),
    Sketcher.Constraint("DistanceY", 1, 3, 0, 3, 21.940611),
    Sketcher.Constraint("DistanceX", 2, 3, 1, 3, 152.513868),
    Sketcher.Constraint("DistanceX", 3, 3, 2, 3, 20.459951),
    Sketcher.Constraint("DistanceY", 4, 3, 5, 3, 21.940611),
    Sketcher.Constraint("DistanceY", 2, 3, 5, 3, 210.754828),
    Sketcher.Constraint("DistanceX", -1, 1, 0, 3, 2888.892976),
    Sketcher.Constraint("DistanceY", -1, 1, 0, 3, 1700.699118),
])
pocket2 = body.newObject("PartDesign::Pocket", "Pocket001")
pocket2.Profile = sketch3
pocket2.Length = 10
pocket2.Reversed = True

sketch4 = body.newObject("Sketcher::SketchObject", "Sketch003")
sketch4.AttachmentSupport = (doc.getObject("XY_Plane"), [""])
sketch4.MapMode = "FlatFace"
sketch4.addGeometry([
    Part.Circle(Vector(2865.4, 1722.6, 0), Vector(0, 0, 1), 1.5),
    Part.Circle(Vector(2855.2, 1711.6, 0), Vector(0, 0, 1), 1.5),
    Part.Circle(Vector(2844.9, 1700.7, 0), Vector(0, 0, 1), 1.5),
    Part.Circle(Vector(2739.4, 1700.7, 0), Vector(0, 0, 1), 1.5),
    Part.Circle(Vector(2729.2, 1711.6, 0), Vector(0, 0, 1), 1.5),
    Part.Circle(Vector(2719, 1722.6, 0), Vector(0, 0, 1), 1.5),
    Part.Circle(Vector(2719, 1845.7, 0), Vector(0, 0, 1), 1.5),
    Part.Circle(Vector(2729.2, 1856.6, 0), Vector(0, 0, 1), 1.5),
    Part.Circle(Vector(2739.4, 1867.6, 0), Vector(0, 0, 1), 1.5),
    Part.Circle(Vector(2844.9, 1867.6, 0), Vector(0, 0, 1), 1.5),
    Part.Circle(Vector(2855.2, 1856.6, 0), Vector(0, 0, 1), 1.5),
    Part.Circle(Vector(2865.4, 1845.7, 0), Vector(0, 0, 1), 1.5),
], False)
sketch4.addConstraint([
    Sketcher.Constraint("Equal", 0, 1),
    Sketcher.Constraint("Equal", 1, 2),
    Sketcher.Constraint("Equal", 2, 3),
    Sketcher.Constraint("Equal", 3, 4),
    Sketcher.Constraint("Equal", 4, 5),
    Sketcher.Constraint("Equal", 5, 6),
    Sketcher.Constraint("Equal", 6, 7),
    Sketcher.Constraint("Equal", 7, 8),
    Sketcher.Constraint("Equal", 8, 9),
    Sketcher.Constraint("Equal", 9, 10),
    Sketcher.Constraint("Equal", 10, 11),
    Sketcher.Constraint("Horizontal", 2, 3, 3, 3),
    Sketcher.Constraint("Horizontal", 1, 3, 4, 3),
    Sketcher.Constraint("Horizontal", 0, 3, 5, 3),
    Sketcher.Constraint("Horizontal", 8, 3, 9, 3),
    Sketcher.Constraint("Horizontal", 7, 3, 10, 3),
    Sketcher.Constraint("Horizontal", 6, 3, 11, 3),
    Sketcher.Constraint("Vertical", 5, 3, 6, 3),
    Sketcher.Constraint("Vertical", 4, 3, 7, 3),
    Sketcher.Constraint("Vertical", 3, 3, 8, 3),
    Sketcher.Constraint("Vertical", 2, 3, 9, 3),
    Sketcher.Constraint("Vertical", 1, 3, 10, 3),
    Sketcher.Constraint("Vertical", 0, 3, 11, 3),
    Sketcher.Constraint("Diameter", 0, 3.0),
    Sketcher.Constraint("DistanceY", -1, 1, 7, 3, 1856.627901),
    Sketcher.Constraint("DistanceX", 4, 3, 0, 3, 136.2016),
    Sketcher.Constraint("DistanceX", 5, 3, 1, 3, 136.2016),
    Sketcher.Constraint("DistanceX", -1, 1, 0, 3, 2865.391879),
    Sketcher.Constraint("DistanceY", -1, 1, 1, 3, 1711.64394),
    Sketcher.Constraint("DistanceX", -1, 1, 2, 3, 2844.931928),
    Sketcher.Constraint("DistanceY", 2, 3, 0, 3, 21.940611),
    Sketcher.Constraint("DistanceX", 3, 3, 1, 3, 115.741649),
    Sketcher.Constraint("DistanceY", 5, 3, 6, 3, 123.043351),
    Sketcher.Constraint("DistanceY", 6, 3, 8, 3, 21.940611),
    Sketcher.Constraint("DistanceY", -1, 1, 0, 3, 1722.614245),
    Sketcher.Constraint("DistanceX", -1, 1, 1, 3, 2855.161904),
])
pocket3 = body.newObject("PartDesign::Pocket", "Pocket002")
pocket3.Profile = sketch4
pocket3.Length = 33
pocket3.Reversed = True

doc.recompute()
